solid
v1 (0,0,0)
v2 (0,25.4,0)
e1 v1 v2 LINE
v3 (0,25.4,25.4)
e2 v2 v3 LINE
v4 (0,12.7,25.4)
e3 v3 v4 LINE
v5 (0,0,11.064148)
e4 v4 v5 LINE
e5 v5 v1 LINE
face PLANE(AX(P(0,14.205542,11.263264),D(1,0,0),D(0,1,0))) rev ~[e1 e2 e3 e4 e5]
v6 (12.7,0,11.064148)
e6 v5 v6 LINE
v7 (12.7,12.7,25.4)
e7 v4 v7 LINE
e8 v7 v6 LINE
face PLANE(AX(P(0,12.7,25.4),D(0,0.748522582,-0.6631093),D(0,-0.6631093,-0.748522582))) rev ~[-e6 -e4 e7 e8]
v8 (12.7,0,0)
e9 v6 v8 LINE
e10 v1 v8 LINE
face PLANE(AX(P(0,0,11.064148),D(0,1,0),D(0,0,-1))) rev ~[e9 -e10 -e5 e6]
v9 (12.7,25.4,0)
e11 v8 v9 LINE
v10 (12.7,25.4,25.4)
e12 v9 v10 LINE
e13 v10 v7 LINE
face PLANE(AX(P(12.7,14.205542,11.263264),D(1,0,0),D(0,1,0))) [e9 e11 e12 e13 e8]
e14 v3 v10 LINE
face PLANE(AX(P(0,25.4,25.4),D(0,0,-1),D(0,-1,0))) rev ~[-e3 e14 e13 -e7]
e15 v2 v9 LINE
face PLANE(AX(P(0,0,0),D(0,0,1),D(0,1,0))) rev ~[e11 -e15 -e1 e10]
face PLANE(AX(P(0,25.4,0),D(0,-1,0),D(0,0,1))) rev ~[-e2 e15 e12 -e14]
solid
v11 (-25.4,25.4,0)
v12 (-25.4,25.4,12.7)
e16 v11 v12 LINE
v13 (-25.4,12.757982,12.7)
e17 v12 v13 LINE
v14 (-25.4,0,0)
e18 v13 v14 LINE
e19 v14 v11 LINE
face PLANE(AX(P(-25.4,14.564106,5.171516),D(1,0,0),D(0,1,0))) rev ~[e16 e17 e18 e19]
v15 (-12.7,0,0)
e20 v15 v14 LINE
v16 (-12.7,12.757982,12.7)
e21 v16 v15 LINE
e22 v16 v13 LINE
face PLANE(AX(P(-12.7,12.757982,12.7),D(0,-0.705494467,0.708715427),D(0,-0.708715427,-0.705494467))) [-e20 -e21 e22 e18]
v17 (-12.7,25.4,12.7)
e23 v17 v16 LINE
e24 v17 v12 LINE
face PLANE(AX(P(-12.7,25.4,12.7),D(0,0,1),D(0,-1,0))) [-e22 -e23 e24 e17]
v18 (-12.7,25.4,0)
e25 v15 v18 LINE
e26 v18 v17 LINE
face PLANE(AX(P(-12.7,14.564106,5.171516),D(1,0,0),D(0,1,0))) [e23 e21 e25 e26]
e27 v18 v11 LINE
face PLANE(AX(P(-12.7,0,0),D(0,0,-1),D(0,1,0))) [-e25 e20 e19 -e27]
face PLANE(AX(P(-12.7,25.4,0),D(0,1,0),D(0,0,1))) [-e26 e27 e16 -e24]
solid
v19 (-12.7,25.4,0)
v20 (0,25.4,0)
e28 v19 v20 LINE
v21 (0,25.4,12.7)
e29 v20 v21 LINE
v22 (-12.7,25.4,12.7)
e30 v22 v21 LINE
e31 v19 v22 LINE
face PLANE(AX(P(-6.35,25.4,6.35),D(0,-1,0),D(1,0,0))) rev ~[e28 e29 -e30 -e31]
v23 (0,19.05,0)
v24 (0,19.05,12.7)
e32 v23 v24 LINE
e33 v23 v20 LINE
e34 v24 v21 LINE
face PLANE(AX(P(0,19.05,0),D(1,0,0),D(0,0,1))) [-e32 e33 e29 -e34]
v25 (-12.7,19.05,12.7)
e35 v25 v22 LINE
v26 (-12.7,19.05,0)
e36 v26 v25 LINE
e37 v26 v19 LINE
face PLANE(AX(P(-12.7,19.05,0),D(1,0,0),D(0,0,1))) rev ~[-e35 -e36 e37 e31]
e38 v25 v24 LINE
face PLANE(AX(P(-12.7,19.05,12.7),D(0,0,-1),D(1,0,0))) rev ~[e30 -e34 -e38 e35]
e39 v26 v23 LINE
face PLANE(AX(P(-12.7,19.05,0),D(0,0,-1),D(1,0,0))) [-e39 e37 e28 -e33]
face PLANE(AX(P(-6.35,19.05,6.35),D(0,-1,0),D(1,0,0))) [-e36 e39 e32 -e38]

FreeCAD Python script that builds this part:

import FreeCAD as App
import Part
import Sketcher

V = App.Vector
Q = App.Units.Quantity

doc = App.newDocument("Part")
body = doc.addObject("PartDesign::Body", "Body")

# Sketch on YZ plane
sketch1 = body.newObject("Sketcher::SketchObject", "Sketch")
sketch1.AttachmentSupport = (doc.getObject("YZ_Plane"), [""])
sketch1.MapMode = "FlatFace"
sketch1.addGeometry(Part.LineSegment(V(0, 11, 0), V(0, 0, 0)), False)
sketch1.addGeometry(Part.LineSegment(V(0, 0, 0), V(25, 0, 0)), False)
sketch1.addGeometry(Part.LineSegment(V(25, 0, 0), V(25, 25, 0)), False)
sketch1.addGeometry(Part.LineSegment(V(25, 25, 0), V(13, 25, 0)), False)
sketch1.addGeometry(Part.LineSegment(V(13, 25, 0), V(0, 11, 0)), False)
sketch1.addConstraint(Sketcher.Constraint("Coincident", 0, 2, 1, 1))
sketch1.addConstraint(Sketcher.Constraint("Coincident", 1, 2, 2, 1))
sketch1.addConstraint(Sketcher.Constraint("Coincident", 2, 2, 3, 1))
sketch1.addConstraint(Sketcher.Constraint("Coincident", 3, 2, 4, 1))
sketch1.addConstraint(Sketcher.Constraint("Coincident", 4, 2, 0, 1))
sketch1.addConstraint(Sketcher.Constraint("Vertical", 0))
sketch1.addConstraint(Sketcher.Constraint("Horizontal", 1))
sketch1.addConstraint(Sketcher.Constraint("Vertical", 2))
sketch1.addConstraint(Sketcher.Constraint("Horizontal", 3))
sketch1.addConstraint(Sketcher.Constraint("Coincident", 0, 2, -1, 1))
sketch1.addConstraint(Sketcher.Constraint("Equal", 1, 2))
sketch1.addConstraint(Sketcher.Constraint("DistanceX", 1, 1, 1, 2, Q("1 in")))
sketch1.addConstraint(Sketcher.Constraint("DistanceX", 3, 2, 3, 1, Q("0.5 in")))
sketch1.addConstraint(Sketcher.Constraint("DistanceY", 0, 2, 0, 1, 11.064148))
pad1 = body.newObject("PartDesign::Pad", "Pad")
pad1.Profile = sketch1
pad1.Length = Q("0.5 in")
body2 = doc.addObject("PartDesign::Body", "Body001")

# Sketch on YZ plane
sketch2 = body2.newObject("Sketcher::SketchObject", "Sketch001")
sketch2.AttachmentSupport = (doc.getObject("YZ_Plane001"), [""])
sketch2.MapMode = "FlatFace"
sketch2.AttachmentOffset = App.Placement(V(0, 0, -0.5 * 25.4), App.Rotation())
sketch2.addGeometry(Part.LineSegment(V(0, 0, 0), V(25, 0, 0)), False)
sketch2.addGeometry(Part.LineSegment(V(25, 0, 0), V(25, 13, 0)), False)
sketch2.addGeometry(Part.LineSegment(V(25, 13, 0), V(13, 13, 0)), False)
sketch2.addGeometry(Part.LineSegment(V(13, 13, 0), V(0, 0, 0)), False)
sketch2.addConstraint(Sketcher.Constraint("Coincident", 0, 2, 1, 1))
sketch2.addConstraint(Sketcher.Constraint("Coincident", 1, 2, 2, 1))
sketch2.addConstraint(Sketcher.Constraint("Coincident", 2, 2, 3, 1))
sketch2.addConstraint(Sketcher.Constraint("Coincident", 3, 2, 0, 1))
sketch2.addConstraint(Sketcher.Constraint("Horizontal", 0))
sketch2.addConstraint(Sketcher.Constraint("Vertical", 1))
sketch2.addConstraint(Sketcher.Constraint("Horizontal", 2))
sketch2.addConstraint(Sketcher.Constraint("Coincident", 3, 2, -1, 1))
sketch2.addConstraint(Sketcher.Constraint("DistanceX", 0, 1, 0, 2, Q("1 in")))
sketch2.addConstraint(Sketcher.Constraint("DistanceY", 1, 1, 1, 2, Q("0.5 in")))
sketch2.addConstraint(Sketcher.Constraint("Distance", 3, 18.001559))
pad2 = body2.newObject("PartDesign::Pad", "Pad001")
pad2.Profile = sketch2
pad2.Length = Q("0.5 in")
pad2.Reversed = True
body3 = doc.addObject("PartDesign::Body", "Body002")

# Sketch on XZ plane
sketch3 = body3.newObject("Sketcher::SketchObject", "Sketch002")
sketch3.AttachmentSupport = (doc.getObject("XZ_Plane002"), [""])
sketch3.MapMode = "FlatFace"
sketch3.AttachmentOffset = App.Placement(V(0, 0, -0.75 * 25.4), App.Rotation())
sketch3.addGeometry(Part.LineSegment(V(-13, 13, 0), V(-13, 0, 0)), False)
sketch3.addGeometry(Part.LineSegment(V(-13, 0, 0), V(0, 0, 0)), False)
sketch3.addGeometry(Part.LineSegment(V(0, 0, 0), V(0, 13, 0)), False)
sketch3.addGeometry(Part.LineSegment(V(0, 13, 0), V(-13, 13, 0)), False)
sketch3.addConstraint(Sketcher.Constraint("Coincident", 0, 2, 1, 1))
sketch3.addConstraint(Sketcher.Constraint("Coincident", 1, 2, 2, 1))
sketch3.addConstraint(Sketcher.Constraint("Coincident", 2, 2, 3, 1))
sketch3.addConstraint(Sketcher.Constraint("Coincident", 3, 2, 0, 1))
sketch3.addConstraint(Sketcher.Constraint("Vertical", 0))
sketch3.addConstraint(Sketcher.Constraint("Horizontal", 1))
sketch3.addConstraint(Sketcher.Constraint("Vertical", 2))
sketch3.addConstraint(Sketcher.Constraint("Horizontal", 3))
sketch3.addConstraint(Sketcher.Constraint("Coincident", 1, 2, -1, 1))
sketch3.addConstraint(Sketcher.Constraint("Equal", 3, 0))
sketch3.addConstraint(Sketcher.Constraint("DistanceX", 1, 1, 1, 2, Q("0.5 in")))
pad3 = body3.newObject("PartDesign::Pad", "Pad002")
pad3.Profile = sketch3
pad3.Length = Q("0.25 in")
pad3.Reversed = True

doc.recompute()
